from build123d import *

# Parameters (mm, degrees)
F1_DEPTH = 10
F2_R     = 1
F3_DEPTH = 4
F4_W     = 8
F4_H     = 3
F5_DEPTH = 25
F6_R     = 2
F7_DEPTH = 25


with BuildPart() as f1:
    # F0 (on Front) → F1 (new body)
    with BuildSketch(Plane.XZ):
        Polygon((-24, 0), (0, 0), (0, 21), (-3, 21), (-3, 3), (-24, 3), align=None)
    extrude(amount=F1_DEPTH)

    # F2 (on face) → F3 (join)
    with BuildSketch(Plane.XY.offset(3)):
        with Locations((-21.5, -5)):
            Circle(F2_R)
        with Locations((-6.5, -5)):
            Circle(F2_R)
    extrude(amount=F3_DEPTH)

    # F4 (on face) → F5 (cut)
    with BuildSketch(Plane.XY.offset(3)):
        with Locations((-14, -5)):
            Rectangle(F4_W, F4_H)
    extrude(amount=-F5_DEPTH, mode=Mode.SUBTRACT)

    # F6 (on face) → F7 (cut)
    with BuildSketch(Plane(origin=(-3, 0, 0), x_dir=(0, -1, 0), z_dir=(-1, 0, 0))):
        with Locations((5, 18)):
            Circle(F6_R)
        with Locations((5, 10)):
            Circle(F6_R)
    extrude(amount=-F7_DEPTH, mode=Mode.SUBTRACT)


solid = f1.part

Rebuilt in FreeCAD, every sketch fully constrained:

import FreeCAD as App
import Part
import Sketcher

doc = App.newDocument("Part")
body = doc.addObject("PartDesign::Body", "Body")

# Sketch on XZ plane
sketch1 = body.newObject("Sketcher::SketchObject", "Sketch")
sketch1.AttachmentSupport = (doc.getObject("XZ_Plane"), [""])
sketch1.MapMode = "FlatFace"
sketch1.addGeometry([
    Part.LineSegment(App.Vector(-24, 0, 0), App.Vector(0, 0, 0)),  # 0
    Part.LineSegment(App.Vector(0, 0, 0), App.Vector(0, 21, 0)),  # 1
    Part.LineSegment(App.Vector(0, 21, 0), App.Vector(-3, 21, 0)),  # 2
    Part.LineSegment(App.Vector(-3, 21, 0), App.Vector(-3, 3, 0)),  # 3
    Part.LineSegment(App.Vector(-3, 3, 0), App.Vector(-24, 3, 0)),  # 4
    Part.LineSegment(App.Vector(-24, 3, 0), App.Vector(-24, 0, 0)),  # 5
], False)
sketch1.addConstraint([
    Sketcher.Constraint("Coincident", 0, 2, 1, 1),
    Sketcher.Constraint("Coincident", 1, 2, 2, 1),
    Sketcher.Constraint("Coincident", 2, 2, 3, 1),
    Sketcher.Constraint("Coincident", 3, 2, 4, 1),
    Sketcher.Constraint("Coincident", 4, 2, 5, 1),
    Sketcher.Constraint("Coincident", 5, 2, 0, 1),
    Sketcher.Constraint("Horizontal", 0),
    Sketcher.Constraint("Vertical", 1),
    Sketcher.Constraint("Horizontal", 2),
    Sketcher.Constraint("Vertical", 3),
    Sketcher.Constraint("Horizontal", 4),
    Sketcher.Constraint("Vertical", 5),
    Sketcher.Constraint("Coincident", 0, 2, -1, 1),
    Sketcher.Constraint("Equal", 4, 1),
    Sketcher.Constraint("Equal", 2, 5),
    Sketcher.Constraint("DistanceX", 0, 1, 0, 2, 24.0),
    Sketcher.Constraint("DistanceX", 2, 2, 2, 1, 3.0),
])
pad1 = body.newObject("PartDesign::Pad", "Pad")
pad1.Profile = sketch1
pad1.Length = 10

# Sketch on XY plane
sketch2 = body.newObject("Sketcher::SketchObject", "Sketch001")
sketch2.AttachmentSupport = (doc.getObject("XY_Plane"), [""])
sketch2.MapMode = "FlatFace"
sketch2.AttachmentOffset = App.Placement(App.Vector(0, 0, 3), App.Rotation())
sketch2.addGeometry([
    Part.Circle(App.Vector(-21.5, -5, 0), App.Vector(0, 0, 1), 1),
    Part.Circle(App.Vector(-6.5, -5, 0), App.Vector(0, 0, 1), 1),
], False)
sketch2.addConstraint([
    Sketcher.Constraint("Equal", 0, 1),
    Sketcher.Constraint("Horizontal", 0, 3, 1, 3),
    Sketcher.Constraint("Diameter", 0, 2.0),
    Sketcher.Constraint("DistanceY", 0, 3, -1, 1, 5.0),
    Sketcher.Constraint("DistanceX", 0, 3, 1, 3, 15.0),
    Sketcher.Constraint("DistanceX", 0, 3, -1, 1, 21.5),
])
pad2 = body.newObject("PartDesign::Pad", "Pad001")
pad2.Profile = sketch2
pad2.Length = 4

# Sketch on XY plane
sketch3 = body.newObject("Sketcher::SketchObject", "Sketch002")
sketch3.AttachmentSupport = (doc.getObject("XY_Plane"), [""])
sketch3.MapMode = "FlatFace"
sketch3.AttachmentOffset = App.Placement(App.Vector(0, 0, 3), App.Rotation())
sketch3.addGeometry([
    Part.LineSegment(App.Vector(-18, -3.5, 0), App.Vector(-18, -6.5, 0)),
    Part.LineSegment(App.Vector(-18, -6.5, 0), App.Vector(-10, -6.5, 0)),
    Part.LineSegment(App.Vector(-10, -6.5, 0), App.Vector(-10, -3.5, 0)),
    Part.LineSegment(App.Vector(-10, -3.5, 0), App.Vector(-18, -3.5, 0)),
], False)
sketch3.addConstraint([
    Sketcher.Constraint("Coincident", 0, 2, 1, 1),
    Sketcher.Constraint("Coincident", 1, 2, 2, 1),
    Sketcher.Constraint("Coincident", 2, 2, 3, 1),
    Sketcher.Constraint("Coincident", 3, 2, 0, 1),
    Sketcher.Constraint("Vertical", 0),
    Sketcher.Constraint("Horizontal", 1),
    Sketcher.Constraint("Vertical", 2),
    Sketcher.Constraint("Horizontal", 3),
    Sketcher.Constraint("DistanceX", 1, 1, 1, 2, 8.0),
    Sketcher.Constraint("DistanceY", 0, 2, 0, 1, 3.0),
    Sketcher.Constraint("DistanceX", 0, 2, -1, 1, 18.0),
    Sketcher.Constraint("DistanceY", 0, 2, -1, 1, 6.5),
])
pocket1 = body.newObject("PartDesign::Pocket", "Pocket")
pocket1.Profile = sketch3
pocket1.Length = 25

# Sketch on YZ plane
sketch4 = body.newObject("Sketcher::SketchObject", "Sketch003")
sketch4.AttachmentSupport = (doc.getObject("YZ_Plane"), [""])
sketch4.MapMode = "FlatFace"
sketch4.AttachmentOffset = App.Placement(App.Vector(0, 0, -3), App.Rotation())
sketch4.addGeometry([
    Part.Circle(App.Vector(-5, 18, 0), App.Vector(0, 0, 1), 2),
    Part.Circle(App.Vector(-5, 10, 0), App.Vector(0, 0, 1), 2),
], False)
sketch4.addConstraint([
    Sketcher.Constraint("Equal", 0, 1),
    Sketcher.Constraint("Vertical", 0, 3, 1, 3),
    Sketcher.Constraint("Diameter", 0, 4.0),
    Sketcher.Constraint("DistanceX", 0, 3, -1, 1, 5.0),
    Sketcher.Constraint("DistanceY", -1, 1, 0, 3, 18.0),
    Sketcher.Constraint("DistanceY", -1, 1, 1, 3, 10.0),
])
pocket2 = body.newObject("PartDesign::Pocket", "Pocket001")
pocket2.Profile = sketch4
pocket2.Length = 25
pocket2.Reversed = True

doc.recompute()
